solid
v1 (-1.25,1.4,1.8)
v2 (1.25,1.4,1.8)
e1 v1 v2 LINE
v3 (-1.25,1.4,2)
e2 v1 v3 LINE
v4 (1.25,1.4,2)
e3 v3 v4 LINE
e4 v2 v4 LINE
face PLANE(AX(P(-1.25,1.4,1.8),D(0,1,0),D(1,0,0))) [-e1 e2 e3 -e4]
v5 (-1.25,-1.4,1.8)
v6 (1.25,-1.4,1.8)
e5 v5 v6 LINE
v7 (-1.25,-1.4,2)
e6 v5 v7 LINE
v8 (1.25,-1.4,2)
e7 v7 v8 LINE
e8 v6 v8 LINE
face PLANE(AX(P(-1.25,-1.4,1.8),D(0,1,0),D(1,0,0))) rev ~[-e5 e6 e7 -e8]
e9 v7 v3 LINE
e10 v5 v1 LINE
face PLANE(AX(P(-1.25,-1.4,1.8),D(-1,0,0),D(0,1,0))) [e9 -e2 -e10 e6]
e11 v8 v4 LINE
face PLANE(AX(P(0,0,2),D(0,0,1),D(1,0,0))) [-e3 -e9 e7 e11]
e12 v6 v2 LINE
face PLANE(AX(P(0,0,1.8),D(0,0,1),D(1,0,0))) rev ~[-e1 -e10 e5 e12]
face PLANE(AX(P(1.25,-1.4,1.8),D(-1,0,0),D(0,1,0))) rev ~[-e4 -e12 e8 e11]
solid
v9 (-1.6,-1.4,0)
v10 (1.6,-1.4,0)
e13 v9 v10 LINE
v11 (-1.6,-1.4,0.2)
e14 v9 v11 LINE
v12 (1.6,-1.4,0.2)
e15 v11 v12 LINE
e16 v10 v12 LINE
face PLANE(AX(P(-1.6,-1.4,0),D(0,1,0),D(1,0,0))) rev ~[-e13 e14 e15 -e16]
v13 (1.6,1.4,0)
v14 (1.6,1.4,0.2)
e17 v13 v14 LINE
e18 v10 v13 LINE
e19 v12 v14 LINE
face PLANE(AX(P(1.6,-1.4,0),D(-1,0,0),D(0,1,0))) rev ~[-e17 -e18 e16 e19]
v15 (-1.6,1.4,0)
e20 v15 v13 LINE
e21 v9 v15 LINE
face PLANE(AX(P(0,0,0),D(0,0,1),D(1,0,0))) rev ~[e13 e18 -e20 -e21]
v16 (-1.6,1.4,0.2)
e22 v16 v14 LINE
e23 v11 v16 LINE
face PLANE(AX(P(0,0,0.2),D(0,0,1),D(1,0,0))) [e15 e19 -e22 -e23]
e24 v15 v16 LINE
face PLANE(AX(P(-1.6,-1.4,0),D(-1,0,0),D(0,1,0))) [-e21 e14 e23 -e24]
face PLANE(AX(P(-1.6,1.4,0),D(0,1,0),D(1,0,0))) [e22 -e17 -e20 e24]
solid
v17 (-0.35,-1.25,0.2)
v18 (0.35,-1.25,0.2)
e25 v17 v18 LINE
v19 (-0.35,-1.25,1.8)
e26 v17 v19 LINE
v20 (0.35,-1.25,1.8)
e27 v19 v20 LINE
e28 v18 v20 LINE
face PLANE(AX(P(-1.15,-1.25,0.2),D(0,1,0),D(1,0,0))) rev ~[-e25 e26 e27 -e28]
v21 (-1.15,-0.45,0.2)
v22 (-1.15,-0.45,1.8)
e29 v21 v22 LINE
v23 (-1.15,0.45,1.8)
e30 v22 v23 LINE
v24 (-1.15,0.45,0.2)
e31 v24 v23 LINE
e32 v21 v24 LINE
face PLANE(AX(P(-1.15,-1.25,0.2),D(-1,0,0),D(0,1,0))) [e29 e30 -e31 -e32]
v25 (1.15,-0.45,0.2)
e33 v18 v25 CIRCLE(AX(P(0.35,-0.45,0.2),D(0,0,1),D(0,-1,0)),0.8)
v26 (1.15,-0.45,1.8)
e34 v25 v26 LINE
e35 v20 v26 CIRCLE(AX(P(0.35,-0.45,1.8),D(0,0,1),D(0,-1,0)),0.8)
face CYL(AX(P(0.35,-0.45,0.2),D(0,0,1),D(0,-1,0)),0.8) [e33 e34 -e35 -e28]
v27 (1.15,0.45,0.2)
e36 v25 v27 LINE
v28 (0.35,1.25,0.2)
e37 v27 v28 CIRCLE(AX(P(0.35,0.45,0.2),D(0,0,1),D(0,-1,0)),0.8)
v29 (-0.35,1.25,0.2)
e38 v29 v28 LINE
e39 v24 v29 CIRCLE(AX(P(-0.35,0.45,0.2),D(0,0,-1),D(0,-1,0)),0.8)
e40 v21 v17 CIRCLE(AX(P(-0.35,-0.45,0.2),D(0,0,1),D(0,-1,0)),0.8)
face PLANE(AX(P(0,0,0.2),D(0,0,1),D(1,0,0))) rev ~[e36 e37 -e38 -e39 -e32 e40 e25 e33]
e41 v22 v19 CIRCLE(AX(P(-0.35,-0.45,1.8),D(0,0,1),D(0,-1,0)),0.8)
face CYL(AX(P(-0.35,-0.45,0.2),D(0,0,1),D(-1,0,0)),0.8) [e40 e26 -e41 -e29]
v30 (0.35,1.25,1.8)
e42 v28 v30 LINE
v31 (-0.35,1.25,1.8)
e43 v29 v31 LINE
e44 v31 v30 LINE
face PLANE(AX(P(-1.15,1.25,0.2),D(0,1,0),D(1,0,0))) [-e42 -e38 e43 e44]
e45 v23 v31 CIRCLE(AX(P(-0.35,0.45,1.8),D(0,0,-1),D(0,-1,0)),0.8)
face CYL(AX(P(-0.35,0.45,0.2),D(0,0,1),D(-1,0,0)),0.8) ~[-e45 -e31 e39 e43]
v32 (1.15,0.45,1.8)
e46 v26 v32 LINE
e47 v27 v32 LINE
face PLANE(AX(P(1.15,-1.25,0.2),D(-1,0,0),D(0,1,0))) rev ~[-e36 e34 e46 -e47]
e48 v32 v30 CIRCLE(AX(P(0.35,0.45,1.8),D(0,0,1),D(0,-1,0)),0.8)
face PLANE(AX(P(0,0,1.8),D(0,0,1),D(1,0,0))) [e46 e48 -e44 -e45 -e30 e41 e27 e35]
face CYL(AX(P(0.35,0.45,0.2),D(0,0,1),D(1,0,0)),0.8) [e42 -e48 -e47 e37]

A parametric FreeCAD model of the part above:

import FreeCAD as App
import Part
import Sketcher
Q = App.Units.Quantity


def edges_at(feature, points):
    """Names of the edges that pass closest to the given points."""
    edges = feature.Shape.Edges
    near = lambda p: min(range(len(edges)), key=lambda i: edges[i].distToShape(Part.Vertex(*p))[0])
    return sorted({f"Edge{near(p) + 1}" for p in points})


def add_polygon(sketch, points):
    """Adds a closed chain of lines whose ends are joined by coincident constraints."""
    first, n = sketch.GeometryCount, len(points)
    for a, b in zip(points, points[1:] + points[:1]):
        sketch.addGeometry(Part.LineSegment(App.Vector(*a, 0), App.Vector(*b, 0)), False)
    for i in range(n):
        sketch.addConstraint(Sketcher.Constraint("Coincident", first + i, 2, first + (i + 1) % n, 1))

doc = App.newDocument("Part")
body = doc.addObject("PartDesign::Body", "Body")

# Sketch on XY plane
sketch1 = body.newObject("Sketcher::SketchObject", "Sketch")
sketch1.AttachmentSupport = (doc.getObject("XY_Plane"), [""])
sketch1.MapMode = "FlatFace"
add_polygon(sketch1, [(-1.6, 1.4), (-1.6, -1.4), (1.6, -1.4), (1.6, 1.4)])  # lines 0-3
sketch1.addConstraint([
    Sketcher.Constraint("Vertical", 0),
    Sketcher.Constraint("Horizontal", 1),
    Sketcher.Constraint("Vertical", 2),
    Sketcher.Constraint("Horizontal", 3),
    Sketcher.Constraint("Symmetric", 0, 2, 2, 2, -1, 1),
    Sketcher.Constraint("DistanceX", 1, 1, 1, 2, Q("3.2 mm")),
    Sketcher.Constraint("DistanceY", 0, 2, 0, 1, Q("2.8 mm")),
])
pad1 = body.newObject("PartDesign::Pad", "Pad")
pad1.Profile = sketch1
pad1.Length = 0.2
body2 = doc.addObject("PartDesign::Body", "Body001")

# Sketch on XY plane
sketch2 = body2.newObject("Sketcher::SketchObject", "Sketch001")
sketch2.AttachmentSupport = (doc.getObject("XY_Plane001"), [""])
sketch2.MapMode = "FlatFace"
sketch2.AttachmentOffset = App.Placement(App.Vector(0, 0, 0.2), App.Rotation())
add_polygon(sketch2, [(-1.1, 1.2), (-1.1, -1.2), (1.1, -1.2), (1.1, 1.2)])  # lines 0-3
sketch2.addConstraint([
    Sketcher.Constraint("Vertical", 0),
    Sketcher.Constraint("Horizontal", 1),
    Sketcher.Constraint("Vertical", 2),
    Sketcher.Constraint("Horizontal", 3),
    Sketcher.Constraint("Symmetric", 0, 2, 2, 2, -1, 1),
    Sketcher.Constraint("DistanceX", 1, 1, 1, 2, Q("2.3 mm")),
    Sketcher.Constraint("DistanceY", 0, 2, 0, 1, Q("2.5 mm")),
])
pad2 = body2.newObject("PartDesign::Pad", "Pad001")
pad2.Profile = sketch2
pad2.Length = 1.6
doc.recompute()

fillet = body2.newObject("PartDesign::Fillet", "Fillet")
fillet.Base = (pad2, edges_at(pad2, [
    (-1.15, -1.25, 1),
    (1.15, -1.25, 1),
    (1.15, 1.25, 1),
    (-1.15, 1.25, 1),
]))
fillet.Radius = 0.8
body3 = doc.addObject("PartDesign::Body", "Body002")

# Sketch on XY plane
sketch3 = body3.newObject("Sketcher::SketchObject", "Sketch002")
sketch3.AttachmentSupport = (doc.getObject("XY_Plane002"), [""])
sketch3.MapMode = "FlatFace"
sketch3.AttachmentOffset = App.Placement(App.Vector(0, 0, 1.8), App.Rotation())
add_polygon(sketch3, [(-1.2, 1.4), (-1.2, -1.4), (1.2, -1.4), (1.2, 1.4)])  # lines 0-3
sketch3.addConstraint([
    Sketcher.Constraint("Vertical", 0),
    Sketcher.Constraint("Horizontal", 1),
    Sketcher.Constraint("Vertical", 2),
    Sketcher.Constraint("Horizontal", 3),
    Sketcher.Constraint("Symmetric", 0, 2, 2, 2, -1, 1),
    Sketcher.Constraint("DistanceX", 1, 1, 1, 2, Q("2.5 mm")),
    Sketcher.Constraint("DistanceY", 0, 2, 0, 1, Q("2.8 mm")),
])
pad3 = body3.newObject("PartDesign::Pad", "Pad002")
pad3.Profile = sketch3
pad3.Length = 0.2

doc.recompute()
